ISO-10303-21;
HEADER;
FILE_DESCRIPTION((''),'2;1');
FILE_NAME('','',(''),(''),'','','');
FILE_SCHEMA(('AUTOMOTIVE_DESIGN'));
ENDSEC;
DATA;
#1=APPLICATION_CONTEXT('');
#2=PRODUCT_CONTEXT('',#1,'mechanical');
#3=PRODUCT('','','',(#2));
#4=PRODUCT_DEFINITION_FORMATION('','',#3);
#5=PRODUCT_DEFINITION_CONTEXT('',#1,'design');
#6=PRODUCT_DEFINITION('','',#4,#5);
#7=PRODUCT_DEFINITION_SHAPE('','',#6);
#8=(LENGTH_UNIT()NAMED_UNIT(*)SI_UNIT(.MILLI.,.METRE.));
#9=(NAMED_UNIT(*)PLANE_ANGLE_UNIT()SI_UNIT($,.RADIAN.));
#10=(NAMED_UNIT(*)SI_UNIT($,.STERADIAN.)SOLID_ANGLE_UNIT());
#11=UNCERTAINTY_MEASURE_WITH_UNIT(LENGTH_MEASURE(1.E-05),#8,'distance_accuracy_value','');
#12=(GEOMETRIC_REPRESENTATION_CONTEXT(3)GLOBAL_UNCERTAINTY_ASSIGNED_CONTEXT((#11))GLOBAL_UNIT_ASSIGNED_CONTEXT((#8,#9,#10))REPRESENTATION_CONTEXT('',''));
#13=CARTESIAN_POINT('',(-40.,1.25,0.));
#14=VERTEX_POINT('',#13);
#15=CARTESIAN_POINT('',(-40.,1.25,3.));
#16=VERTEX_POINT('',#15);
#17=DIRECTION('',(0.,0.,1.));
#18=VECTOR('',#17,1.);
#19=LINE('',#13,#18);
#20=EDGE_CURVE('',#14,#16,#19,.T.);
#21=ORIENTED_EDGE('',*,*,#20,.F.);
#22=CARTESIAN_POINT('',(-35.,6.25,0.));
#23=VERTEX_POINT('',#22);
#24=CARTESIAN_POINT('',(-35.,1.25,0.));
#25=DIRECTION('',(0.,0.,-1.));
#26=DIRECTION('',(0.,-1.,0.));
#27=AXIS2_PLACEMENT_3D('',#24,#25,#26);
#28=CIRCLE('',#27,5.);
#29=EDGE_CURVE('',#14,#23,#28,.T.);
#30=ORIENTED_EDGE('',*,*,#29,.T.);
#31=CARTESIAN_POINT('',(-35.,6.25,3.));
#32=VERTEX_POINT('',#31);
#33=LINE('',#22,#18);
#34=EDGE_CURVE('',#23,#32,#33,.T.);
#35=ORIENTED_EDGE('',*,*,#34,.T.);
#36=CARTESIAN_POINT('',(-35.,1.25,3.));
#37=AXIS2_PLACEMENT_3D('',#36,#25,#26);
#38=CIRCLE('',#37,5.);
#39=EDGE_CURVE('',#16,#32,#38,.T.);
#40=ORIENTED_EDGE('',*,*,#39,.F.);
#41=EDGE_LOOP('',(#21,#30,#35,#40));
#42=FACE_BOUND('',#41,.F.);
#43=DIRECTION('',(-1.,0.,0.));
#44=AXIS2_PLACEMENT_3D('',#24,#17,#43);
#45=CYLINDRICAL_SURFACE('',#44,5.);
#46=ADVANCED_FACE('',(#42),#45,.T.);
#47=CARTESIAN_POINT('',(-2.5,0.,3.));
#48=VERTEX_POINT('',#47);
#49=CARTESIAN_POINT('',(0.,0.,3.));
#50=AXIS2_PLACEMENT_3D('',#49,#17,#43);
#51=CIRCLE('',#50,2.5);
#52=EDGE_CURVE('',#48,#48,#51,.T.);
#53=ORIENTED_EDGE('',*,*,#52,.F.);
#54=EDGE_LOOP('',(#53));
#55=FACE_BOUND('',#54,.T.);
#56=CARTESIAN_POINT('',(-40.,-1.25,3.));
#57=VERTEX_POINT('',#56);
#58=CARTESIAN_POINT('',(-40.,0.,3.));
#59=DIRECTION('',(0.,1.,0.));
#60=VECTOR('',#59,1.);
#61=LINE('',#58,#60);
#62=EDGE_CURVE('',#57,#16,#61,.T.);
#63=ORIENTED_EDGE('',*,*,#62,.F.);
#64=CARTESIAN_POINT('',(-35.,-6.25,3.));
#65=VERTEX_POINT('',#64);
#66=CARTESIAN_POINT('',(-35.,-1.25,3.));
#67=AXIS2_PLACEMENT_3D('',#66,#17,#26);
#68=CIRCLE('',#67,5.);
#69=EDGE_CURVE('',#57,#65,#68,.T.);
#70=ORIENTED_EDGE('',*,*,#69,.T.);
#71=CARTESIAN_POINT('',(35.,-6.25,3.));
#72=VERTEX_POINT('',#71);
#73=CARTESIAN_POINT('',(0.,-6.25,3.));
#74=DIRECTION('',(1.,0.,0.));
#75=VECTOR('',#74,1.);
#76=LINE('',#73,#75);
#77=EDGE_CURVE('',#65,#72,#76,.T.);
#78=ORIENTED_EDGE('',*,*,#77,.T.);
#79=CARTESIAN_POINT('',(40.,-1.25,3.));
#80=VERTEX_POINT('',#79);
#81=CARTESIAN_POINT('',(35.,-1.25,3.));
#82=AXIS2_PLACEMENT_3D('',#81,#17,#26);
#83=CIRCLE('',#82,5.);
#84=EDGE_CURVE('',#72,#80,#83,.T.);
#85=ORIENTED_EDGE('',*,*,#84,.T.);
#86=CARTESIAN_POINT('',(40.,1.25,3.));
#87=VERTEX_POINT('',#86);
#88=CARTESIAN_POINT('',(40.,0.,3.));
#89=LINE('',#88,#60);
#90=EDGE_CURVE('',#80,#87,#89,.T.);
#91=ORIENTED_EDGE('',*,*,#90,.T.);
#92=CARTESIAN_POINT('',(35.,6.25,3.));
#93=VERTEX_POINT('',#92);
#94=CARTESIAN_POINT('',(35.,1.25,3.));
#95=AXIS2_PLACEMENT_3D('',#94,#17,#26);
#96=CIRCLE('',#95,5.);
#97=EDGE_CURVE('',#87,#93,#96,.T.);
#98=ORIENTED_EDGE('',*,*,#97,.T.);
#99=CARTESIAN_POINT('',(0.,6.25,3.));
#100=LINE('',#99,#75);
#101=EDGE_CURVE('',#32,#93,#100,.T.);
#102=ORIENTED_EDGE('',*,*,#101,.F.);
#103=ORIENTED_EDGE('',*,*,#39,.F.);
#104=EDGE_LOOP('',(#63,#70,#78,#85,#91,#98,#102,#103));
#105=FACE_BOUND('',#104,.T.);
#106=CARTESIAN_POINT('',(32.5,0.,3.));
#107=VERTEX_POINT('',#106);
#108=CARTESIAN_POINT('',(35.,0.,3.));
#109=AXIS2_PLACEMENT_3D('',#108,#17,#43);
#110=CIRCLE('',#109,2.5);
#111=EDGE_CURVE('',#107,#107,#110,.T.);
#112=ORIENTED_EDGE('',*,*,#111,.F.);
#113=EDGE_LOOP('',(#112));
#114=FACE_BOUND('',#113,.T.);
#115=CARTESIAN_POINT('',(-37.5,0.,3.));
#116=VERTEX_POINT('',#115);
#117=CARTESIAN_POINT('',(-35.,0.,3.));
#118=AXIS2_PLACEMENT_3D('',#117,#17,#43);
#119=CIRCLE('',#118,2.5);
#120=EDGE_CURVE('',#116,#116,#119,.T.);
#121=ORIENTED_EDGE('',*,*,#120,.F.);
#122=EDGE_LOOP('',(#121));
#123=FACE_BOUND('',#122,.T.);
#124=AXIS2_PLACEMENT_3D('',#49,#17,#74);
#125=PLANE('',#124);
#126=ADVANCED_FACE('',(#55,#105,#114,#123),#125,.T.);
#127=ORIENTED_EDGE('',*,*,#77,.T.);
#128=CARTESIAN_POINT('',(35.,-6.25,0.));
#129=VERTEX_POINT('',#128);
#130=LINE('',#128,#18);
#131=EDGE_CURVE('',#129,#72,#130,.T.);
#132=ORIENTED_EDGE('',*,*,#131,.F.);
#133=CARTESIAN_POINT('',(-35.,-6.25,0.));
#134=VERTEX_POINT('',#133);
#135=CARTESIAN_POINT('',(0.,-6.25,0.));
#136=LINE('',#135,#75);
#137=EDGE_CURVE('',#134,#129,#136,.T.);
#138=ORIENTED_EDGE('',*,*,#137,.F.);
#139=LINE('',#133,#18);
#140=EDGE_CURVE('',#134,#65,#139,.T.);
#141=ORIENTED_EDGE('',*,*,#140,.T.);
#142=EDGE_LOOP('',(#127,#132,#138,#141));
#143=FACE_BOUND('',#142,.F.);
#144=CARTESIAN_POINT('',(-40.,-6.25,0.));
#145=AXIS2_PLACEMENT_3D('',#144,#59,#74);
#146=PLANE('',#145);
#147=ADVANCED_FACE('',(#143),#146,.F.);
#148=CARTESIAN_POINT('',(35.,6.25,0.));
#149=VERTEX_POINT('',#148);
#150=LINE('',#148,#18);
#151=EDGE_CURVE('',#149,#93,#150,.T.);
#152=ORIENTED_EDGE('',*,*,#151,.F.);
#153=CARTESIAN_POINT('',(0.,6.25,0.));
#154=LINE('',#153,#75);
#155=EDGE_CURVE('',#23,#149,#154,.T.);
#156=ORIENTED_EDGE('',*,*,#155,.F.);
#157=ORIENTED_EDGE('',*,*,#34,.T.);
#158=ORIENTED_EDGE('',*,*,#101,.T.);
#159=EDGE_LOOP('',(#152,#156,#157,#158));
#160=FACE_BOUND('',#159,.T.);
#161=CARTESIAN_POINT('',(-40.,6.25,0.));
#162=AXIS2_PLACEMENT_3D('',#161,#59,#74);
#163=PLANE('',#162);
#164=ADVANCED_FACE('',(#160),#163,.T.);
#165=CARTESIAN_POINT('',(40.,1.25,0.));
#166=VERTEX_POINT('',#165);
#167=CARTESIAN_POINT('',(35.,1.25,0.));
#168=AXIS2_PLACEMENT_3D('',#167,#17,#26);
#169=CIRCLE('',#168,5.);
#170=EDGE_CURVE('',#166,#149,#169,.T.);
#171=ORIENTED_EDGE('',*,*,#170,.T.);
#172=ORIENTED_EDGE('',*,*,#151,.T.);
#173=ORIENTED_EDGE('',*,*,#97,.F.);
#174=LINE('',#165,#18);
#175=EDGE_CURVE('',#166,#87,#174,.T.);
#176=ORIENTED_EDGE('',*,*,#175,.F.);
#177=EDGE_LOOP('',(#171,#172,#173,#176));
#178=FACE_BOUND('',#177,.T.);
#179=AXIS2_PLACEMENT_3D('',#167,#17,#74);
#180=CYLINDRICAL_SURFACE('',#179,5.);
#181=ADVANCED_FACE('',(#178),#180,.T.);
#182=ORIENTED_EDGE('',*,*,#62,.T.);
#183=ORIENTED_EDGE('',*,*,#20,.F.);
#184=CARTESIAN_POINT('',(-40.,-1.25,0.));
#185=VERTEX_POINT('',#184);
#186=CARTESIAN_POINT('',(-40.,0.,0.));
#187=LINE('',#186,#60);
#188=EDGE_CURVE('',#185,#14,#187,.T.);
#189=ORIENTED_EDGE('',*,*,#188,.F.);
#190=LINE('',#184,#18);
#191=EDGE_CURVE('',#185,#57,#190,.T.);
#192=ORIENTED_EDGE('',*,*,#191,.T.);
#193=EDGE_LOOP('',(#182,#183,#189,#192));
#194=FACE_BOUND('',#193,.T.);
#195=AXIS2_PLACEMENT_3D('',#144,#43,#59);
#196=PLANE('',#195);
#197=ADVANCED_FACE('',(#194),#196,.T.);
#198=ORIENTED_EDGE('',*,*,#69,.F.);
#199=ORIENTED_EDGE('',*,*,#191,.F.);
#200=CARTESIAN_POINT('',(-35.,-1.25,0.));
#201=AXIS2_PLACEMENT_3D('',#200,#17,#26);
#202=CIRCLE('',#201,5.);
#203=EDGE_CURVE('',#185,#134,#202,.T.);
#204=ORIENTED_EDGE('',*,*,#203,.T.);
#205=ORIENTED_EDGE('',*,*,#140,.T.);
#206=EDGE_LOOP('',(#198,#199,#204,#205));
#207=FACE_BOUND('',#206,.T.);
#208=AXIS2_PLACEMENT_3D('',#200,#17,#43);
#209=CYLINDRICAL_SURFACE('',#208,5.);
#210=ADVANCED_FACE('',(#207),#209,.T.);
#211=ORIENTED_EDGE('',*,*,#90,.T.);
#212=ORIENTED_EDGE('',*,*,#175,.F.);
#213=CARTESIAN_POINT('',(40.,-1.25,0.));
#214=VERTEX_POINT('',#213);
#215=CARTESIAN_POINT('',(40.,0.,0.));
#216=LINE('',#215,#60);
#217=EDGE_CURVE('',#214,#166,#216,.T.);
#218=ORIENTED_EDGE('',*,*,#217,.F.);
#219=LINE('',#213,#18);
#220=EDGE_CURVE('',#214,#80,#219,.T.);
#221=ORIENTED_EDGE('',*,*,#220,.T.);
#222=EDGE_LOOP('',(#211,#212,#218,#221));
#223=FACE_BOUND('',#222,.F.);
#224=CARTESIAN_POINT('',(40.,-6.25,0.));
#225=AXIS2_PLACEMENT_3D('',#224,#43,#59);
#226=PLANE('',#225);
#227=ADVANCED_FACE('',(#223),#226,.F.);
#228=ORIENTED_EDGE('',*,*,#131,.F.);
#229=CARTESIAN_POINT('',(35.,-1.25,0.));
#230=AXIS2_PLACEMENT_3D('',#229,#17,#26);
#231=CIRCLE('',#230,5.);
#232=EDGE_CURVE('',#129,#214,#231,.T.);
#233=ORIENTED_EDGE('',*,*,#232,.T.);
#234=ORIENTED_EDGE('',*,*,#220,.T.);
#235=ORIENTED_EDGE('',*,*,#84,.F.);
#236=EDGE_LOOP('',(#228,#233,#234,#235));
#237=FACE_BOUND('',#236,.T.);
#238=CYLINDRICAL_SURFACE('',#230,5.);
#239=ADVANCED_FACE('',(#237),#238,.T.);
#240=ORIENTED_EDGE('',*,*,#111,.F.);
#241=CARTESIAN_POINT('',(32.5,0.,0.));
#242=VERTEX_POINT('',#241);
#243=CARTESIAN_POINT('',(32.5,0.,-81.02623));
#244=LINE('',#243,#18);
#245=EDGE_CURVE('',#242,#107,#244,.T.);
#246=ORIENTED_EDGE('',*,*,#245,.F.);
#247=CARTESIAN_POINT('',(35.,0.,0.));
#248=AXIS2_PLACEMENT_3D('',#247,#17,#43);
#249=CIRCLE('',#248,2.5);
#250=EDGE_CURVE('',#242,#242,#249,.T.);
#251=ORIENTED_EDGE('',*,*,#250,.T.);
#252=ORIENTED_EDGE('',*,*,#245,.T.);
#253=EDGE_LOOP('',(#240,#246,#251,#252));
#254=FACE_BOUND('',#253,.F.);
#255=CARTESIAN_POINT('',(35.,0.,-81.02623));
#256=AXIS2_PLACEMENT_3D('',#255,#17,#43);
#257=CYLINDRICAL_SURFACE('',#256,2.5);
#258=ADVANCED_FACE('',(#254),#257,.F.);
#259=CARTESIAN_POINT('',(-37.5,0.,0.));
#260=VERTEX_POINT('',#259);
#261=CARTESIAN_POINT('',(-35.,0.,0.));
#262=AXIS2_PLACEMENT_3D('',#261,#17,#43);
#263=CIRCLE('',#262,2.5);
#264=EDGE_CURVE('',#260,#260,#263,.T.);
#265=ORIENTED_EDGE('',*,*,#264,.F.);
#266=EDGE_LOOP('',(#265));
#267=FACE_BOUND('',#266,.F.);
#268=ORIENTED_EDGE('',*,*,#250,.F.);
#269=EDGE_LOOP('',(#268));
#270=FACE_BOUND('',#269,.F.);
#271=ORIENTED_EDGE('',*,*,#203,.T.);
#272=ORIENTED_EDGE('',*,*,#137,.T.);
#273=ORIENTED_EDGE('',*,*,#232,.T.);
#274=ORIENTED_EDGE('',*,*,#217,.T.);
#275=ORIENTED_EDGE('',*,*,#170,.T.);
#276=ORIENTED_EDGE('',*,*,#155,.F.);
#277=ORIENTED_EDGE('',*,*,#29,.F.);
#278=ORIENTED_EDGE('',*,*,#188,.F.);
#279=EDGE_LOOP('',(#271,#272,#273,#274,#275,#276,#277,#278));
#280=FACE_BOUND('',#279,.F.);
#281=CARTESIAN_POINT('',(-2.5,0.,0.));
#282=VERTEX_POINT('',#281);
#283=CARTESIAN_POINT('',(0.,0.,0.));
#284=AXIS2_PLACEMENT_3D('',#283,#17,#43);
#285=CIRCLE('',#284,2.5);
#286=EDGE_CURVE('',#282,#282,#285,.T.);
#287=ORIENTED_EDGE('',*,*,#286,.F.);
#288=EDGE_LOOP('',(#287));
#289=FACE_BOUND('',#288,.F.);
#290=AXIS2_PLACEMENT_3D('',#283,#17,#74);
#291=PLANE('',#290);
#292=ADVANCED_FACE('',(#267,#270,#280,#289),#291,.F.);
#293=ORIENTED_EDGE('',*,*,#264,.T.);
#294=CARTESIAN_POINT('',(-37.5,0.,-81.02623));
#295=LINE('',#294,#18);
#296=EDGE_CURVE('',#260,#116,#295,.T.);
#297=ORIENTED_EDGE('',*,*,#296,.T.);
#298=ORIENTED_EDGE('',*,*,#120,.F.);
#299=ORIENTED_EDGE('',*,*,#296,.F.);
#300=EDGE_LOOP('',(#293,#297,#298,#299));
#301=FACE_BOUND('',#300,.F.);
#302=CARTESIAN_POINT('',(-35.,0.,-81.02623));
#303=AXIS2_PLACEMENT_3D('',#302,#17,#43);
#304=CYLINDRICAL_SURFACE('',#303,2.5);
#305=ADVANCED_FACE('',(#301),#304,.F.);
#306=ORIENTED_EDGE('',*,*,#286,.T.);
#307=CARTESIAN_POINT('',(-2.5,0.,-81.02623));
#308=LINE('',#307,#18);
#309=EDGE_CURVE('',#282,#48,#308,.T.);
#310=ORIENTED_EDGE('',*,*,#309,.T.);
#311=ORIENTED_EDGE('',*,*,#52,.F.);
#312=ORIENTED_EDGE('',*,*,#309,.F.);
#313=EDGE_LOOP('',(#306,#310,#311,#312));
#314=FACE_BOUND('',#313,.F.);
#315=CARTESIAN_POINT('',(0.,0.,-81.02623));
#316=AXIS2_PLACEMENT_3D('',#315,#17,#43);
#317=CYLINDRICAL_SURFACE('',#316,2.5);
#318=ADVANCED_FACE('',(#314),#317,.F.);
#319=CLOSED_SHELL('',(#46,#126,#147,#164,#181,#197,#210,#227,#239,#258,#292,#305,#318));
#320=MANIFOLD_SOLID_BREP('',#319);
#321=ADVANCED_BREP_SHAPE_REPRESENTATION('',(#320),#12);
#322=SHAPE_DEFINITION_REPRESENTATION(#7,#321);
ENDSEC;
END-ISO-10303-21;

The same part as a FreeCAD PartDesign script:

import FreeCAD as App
import Part
import Sketcher
from FreeCAD import Vector
Q = App.Units.Quantity


def edges_at(feature, points):
    """Names of the edges that pass closest to the given points."""
    edges = feature.Shape.Edges
    near = lambda p: min(range(len(edges)), key=lambda i: edges[i].distToShape(Part.Vertex(*p))[0])
    return sorted({f"Edge{near(p) + 1}" for p in points})


def add_polygon(sketch, points):
    """Adds a closed chain of lines whose ends are joined by coincident constraints."""
    first, n = sketch.GeometryCount, len(points)
    for a, b in zip(points, points[1:] + points[:1]):
        sketch.addGeometry(Part.LineSegment(App.Vector(*a, 0), App.Vector(*b, 0)), False)
    for i in range(n):
        sketch.addConstraint(Sketcher.Constraint("Coincident", first + i, 2, first + (i + 1) % n, 1))

doc = App.newDocument("Part")
body = doc.addObject("PartDesign::Body", "Body")

sketch1 = doc.addObject("Sketcher::SketchObject", "Sketch")
body.addObject(sketch1)
sketch1.AttachmentSupport = (doc.XY_Plane, [""])
sketch1.MapMode = "FlatFace"
add_polygon(sketch1, [(-40, 6.25), (-40, -6.25), (40, -6.25), (40, 6.25)])
sketch1.addConstraint([
    Sketcher.Constraint("Vertical", 0),
    Sketcher.Constraint("Horizontal", 1),
    Sketcher.Constraint("Vertical", 2),
    Sketcher.Constraint("Horizontal", 3),
    Sketcher.Constraint("Symmetric", 0, 2, 2, 2, -1, 1),
    Sketcher.Constraint("DistanceX", 1, 1, 1, 2, Q("80 mm")),
    Sketcher.Constraint("DistanceY", 0, 2, 0, 1, Q("12.5 mm")),
])
pad1 = doc.addObject("PartDesign::Pad", "Pad")
body.addObject(pad1)
pad1.Profile = sketch1
pad1.Length = 3
doc.recompute()

fillet = doc.addObject("PartDesign::Fillet", "Fillet")
body.addObject(fillet)
fillet.Base = (pad1, edges_at(pad1, [
    (40, -6.25, 1.5),
    (40, 6.25, 1.5),
    (-40, -6.25, 1.5),
    (-40, 6.25, 1.5),
]))
fillet.Radius = 5

sketch2 = doc.addObject("Sketcher::SketchObject", "Sketch001")
body.addObject(sketch2)
sketch2.AttachmentSupport = (doc.XY_Plane, [""])
sketch2.MapMode = "FlatFace"
sketch2.addGeometry([
    Part.Circle(Vector(-35, 0, 0), Vector(0, 0, 1), 2.5),
    Part.Circle(Vector(0, 0, 0), Vector(0, 0, 1), 2.5),
    Part.Circle(Vector(35, 0, 0), Vector(0, 0, 1), 2.5),
], False)
sketch2.addConstraint([
    Sketcher.Constraint("Coincident", 1, 3, -1, 1),
    Sketcher.Constraint("Equal", 0, 1),
    Sketcher.Constraint("Equal", 1, 2),
    Sketcher.Constraint("Symmetric", 0, 3, 2, 3, -1, 1),
    Sketcher.Constraint("PointOnObject", 0, 3, -1),
    Sketcher.Constraint("Diameter", 0, Q("5 mm")),
    Sketcher.Constraint("DistanceX", 0, 3, -1, 1, Q("35 mm")),
])
doc.recompute()
hole = doc.addObject("PartDesign::Hole", "Hole")
body.addObject(hole)
hole.Profile = sketch2
hole.ThreadType = "None"
hole.Diameter = 5
hole.DepthType = "ThroughAll"
hole.Reversed = True

doc.recompute()
